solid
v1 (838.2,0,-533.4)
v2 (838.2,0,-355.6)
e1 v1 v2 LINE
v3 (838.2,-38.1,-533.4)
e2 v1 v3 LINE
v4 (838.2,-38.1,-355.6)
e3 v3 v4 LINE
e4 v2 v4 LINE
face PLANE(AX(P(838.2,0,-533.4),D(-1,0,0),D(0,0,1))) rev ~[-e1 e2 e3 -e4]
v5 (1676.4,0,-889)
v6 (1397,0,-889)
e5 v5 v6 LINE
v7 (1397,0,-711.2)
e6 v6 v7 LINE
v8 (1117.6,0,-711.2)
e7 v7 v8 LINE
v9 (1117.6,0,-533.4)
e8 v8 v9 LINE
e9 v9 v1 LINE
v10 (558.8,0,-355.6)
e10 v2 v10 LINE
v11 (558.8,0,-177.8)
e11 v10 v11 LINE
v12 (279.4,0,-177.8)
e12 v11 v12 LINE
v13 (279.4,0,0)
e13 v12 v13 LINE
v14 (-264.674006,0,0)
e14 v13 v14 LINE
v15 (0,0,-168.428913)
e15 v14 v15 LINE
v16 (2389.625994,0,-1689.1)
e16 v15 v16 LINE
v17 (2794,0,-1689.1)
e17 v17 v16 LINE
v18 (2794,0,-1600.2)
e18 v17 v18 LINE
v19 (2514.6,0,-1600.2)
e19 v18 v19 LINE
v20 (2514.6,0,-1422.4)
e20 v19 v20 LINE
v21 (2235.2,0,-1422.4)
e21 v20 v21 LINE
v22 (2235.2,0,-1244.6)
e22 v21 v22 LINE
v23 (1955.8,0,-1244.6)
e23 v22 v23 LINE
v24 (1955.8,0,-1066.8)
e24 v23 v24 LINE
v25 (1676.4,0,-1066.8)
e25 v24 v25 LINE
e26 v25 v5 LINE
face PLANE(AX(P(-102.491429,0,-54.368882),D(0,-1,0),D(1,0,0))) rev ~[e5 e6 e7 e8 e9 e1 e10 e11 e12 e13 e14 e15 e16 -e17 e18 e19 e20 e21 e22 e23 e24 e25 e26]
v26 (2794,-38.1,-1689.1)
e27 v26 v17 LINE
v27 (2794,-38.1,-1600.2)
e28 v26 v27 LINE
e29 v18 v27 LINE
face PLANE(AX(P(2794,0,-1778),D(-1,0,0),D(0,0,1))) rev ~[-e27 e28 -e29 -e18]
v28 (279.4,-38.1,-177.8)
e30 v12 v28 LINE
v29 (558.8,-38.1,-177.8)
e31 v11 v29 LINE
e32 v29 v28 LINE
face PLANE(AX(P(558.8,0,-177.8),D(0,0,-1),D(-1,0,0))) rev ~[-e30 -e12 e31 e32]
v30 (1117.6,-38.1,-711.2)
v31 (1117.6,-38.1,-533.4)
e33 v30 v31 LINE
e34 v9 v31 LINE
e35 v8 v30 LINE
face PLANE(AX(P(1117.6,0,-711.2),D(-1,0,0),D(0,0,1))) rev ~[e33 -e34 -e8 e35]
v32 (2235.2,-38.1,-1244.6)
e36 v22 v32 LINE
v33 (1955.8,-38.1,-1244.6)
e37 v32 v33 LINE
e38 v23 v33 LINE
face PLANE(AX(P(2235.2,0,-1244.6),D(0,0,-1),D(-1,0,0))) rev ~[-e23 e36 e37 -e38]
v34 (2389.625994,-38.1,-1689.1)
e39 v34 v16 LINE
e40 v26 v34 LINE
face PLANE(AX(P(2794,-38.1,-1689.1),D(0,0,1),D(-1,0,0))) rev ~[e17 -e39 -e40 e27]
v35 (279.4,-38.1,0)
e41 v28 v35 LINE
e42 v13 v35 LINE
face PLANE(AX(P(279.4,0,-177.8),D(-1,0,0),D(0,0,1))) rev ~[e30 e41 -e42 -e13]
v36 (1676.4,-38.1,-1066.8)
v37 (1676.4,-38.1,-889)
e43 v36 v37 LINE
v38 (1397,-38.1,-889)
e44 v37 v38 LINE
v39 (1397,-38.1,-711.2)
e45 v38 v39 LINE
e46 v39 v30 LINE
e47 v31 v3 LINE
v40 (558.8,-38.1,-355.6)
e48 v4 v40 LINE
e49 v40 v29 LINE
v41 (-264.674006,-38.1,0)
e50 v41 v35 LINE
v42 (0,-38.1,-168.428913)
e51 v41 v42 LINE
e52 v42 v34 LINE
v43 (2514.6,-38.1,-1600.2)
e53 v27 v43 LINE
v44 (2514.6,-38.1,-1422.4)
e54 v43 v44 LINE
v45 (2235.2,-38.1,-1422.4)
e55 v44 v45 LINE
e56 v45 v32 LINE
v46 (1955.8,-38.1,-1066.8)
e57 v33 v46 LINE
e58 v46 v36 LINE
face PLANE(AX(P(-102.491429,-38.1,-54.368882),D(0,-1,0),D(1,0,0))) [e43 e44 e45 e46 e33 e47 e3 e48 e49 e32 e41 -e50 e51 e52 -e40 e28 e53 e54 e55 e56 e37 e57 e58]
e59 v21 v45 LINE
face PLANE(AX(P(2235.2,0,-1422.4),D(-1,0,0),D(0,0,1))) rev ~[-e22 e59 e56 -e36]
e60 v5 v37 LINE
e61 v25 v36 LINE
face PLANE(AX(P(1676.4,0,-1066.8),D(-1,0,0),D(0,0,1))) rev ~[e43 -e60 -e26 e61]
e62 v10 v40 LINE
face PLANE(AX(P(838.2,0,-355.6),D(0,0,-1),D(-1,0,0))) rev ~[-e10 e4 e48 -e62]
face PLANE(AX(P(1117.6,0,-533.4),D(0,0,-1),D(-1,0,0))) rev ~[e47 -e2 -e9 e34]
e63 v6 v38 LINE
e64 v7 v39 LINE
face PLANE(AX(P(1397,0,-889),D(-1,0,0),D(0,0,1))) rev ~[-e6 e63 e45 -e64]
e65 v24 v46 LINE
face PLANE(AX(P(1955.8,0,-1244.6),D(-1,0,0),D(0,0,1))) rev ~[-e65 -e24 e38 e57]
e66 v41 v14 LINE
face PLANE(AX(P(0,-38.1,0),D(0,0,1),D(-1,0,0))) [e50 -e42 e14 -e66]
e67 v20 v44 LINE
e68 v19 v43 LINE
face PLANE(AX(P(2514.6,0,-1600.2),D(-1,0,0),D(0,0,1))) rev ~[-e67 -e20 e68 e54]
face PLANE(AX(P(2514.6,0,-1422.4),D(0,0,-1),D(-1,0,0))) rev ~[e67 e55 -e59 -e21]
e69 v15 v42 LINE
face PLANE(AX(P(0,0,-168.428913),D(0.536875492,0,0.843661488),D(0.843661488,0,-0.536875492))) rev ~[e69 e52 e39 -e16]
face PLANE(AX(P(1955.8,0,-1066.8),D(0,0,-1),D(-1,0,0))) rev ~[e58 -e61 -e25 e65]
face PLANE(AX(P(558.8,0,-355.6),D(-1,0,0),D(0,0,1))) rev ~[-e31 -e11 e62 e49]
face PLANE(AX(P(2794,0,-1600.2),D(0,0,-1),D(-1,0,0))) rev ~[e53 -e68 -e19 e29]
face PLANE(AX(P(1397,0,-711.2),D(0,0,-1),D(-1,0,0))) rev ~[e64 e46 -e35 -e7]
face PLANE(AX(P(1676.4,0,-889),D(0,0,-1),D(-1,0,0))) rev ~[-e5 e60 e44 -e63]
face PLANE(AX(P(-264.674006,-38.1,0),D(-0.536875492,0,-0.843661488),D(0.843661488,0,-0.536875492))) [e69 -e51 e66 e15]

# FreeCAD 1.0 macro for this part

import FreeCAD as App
import Part
import Sketcher

V = App.Vector
Q = App.Units.Quantity

doc = App.newDocument("Part")
body = doc.addObject("PartDesign::Body", "Body")

# Sketch on XZ plane
sketch1 = body.newObject("Sketcher::SketchObject", "Sketch")
sketch1.AttachmentSupport = (doc.getObject("XZ_Plane"), [""])
sketch1.MapMode = "FlatFace"
sketch1.addGeometry(Part.LineSegment(V(279, 0, 0), V(0, 0, 0)), False)
sketch1.addGeometry(Part.LineSegment(V(0, 0, 0), V(0, -168, 0)), False)
sketch1.addGeometry(Part.LineSegment(V(0, -168, 0), V(2529, -1778, 0)), False)
sketch1.addGeometry(Part.LineSegment(V(2529, -1778, 0), V(2794, -1778, 0)), False)
sketch1.addGeometry(Part.LineSegment(V(2794, -1778, 0), V(2794, -1600, 0)), False)
sketch1.addGeometry(Part.LineSegment(V(2794, -1600, 0), V(2515, -1600, 0)), False)
sketch1.addGeometry(Part.LineSegment(V(2515, -1600, 0), V(2515, -1422, 0)), False)
sketch1.addGeometry(Part.LineSegment(V(2515, -1422, 0), V(2235, -1422, 0)), False)
sketch1.addGeometry(Part.LineSegment(V(2235, -1422, 0), V(2235, -1245, 0)), False)
sketch1.addGeometry(Part.LineSegment(V(2235, -1245, 0), V(1956, -1245, 0)), False)
sketch1.addGeometry(Part.LineSegment(V(1956, -1245, 0), V(1956, -1067, 0)), False)
sketch1.addGeometry(Part.LineSegment(V(1956, -1067, 0), V(1676, -1067, 0)), False)
sketch1.addGeometry(Part.LineSegment(V(1676, -1067, 0), V(1676, -889, 0)), False)
sketch1.addGeometry(Part.LineSegment(V(1676, -889, 0), V(1397, -889, 0)), False)
sketch1.addGeometry(Part.LineSegment(V(1397, -889, 0), V(1397, -711, 0)), False)
sketch1.addGeometry(Part.LineSegment(V(1397, -711, 0), V(1118, -711, 0)), False)
sketch1.addGeometry(Part.LineSegment(V(1118, -711, 0), V(1118, -533, 0)), False)
sketch1.addGeometry(Part.LineSegment(V(1118, -533, 0), V(838, -533, 0)), False)
sketch1.addGeometry(Part.LineSegment(V(838, -533, 0), V(838, -356, 0)), False)
sketch1.addGeometry(Part.LineSegment(V(838, -356, 0), V(559, -356, 0)), False)
sketch1.addGeometry(Part.LineSegment(V(559, -356, 0), V(559, -178, 0)), False)
sketch1.addGeometry(Part.LineSegment(V(559, -178, 0), V(279, -178, 0)), False)
sketch1.addGeometry(Part.LineSegment(V(279, -178, 0), V(279, 0, 0)), False)
sketch1.addConstraint(Sketcher.Constraint("Coincident", 0, 2, 1, 1))
sketch1.addConstraint(Sketcher.Constraint("Coincident", 1, 2, 2, 1))
sketch1.addConstraint(Sketcher.Constraint("Coincident", 2, 2, 3, 1))
sketch1.addConstraint(Sketcher.Constraint("Coincident", 3, 2, 4, 1))
sketch1.addConstraint(Sketcher.Constraint("Coincident", 4, 2, 5, 1))
sketch1.addConstraint(Sketcher.Constraint("Coincident", 5, 2, 6, 1))
sketch1.addConstraint(Sketcher.Constraint("Coincident", 6, 2, 7, 1))
sketch1.addConstraint(Sketcher.Constraint("Coincident", 7, 2, 8, 1))
sketch1.addConstraint(Sketcher.Constraint("Coincident", 8, 2, 9, 1))
sketch1.addConstraint(Sketcher.Constraint("Coincident", 9, 2, 10, 1))
sketch1.addConstraint(Sketcher.Constraint("Coincident", 10, 2, 11, 1))
sketch1.addConstraint(Sketcher.Constraint("Coincident", 11, 2, 12, 1))
sketch1.addConstraint(Sketcher.Constraint("Coincident", 12, 2, 13, 1))
sketch1.addConstraint(Sketcher.Constraint("Coincident", 13, 2, 14, 1))
sketch1.addConstraint(Sketcher.Constraint("Coincident", 14, 2, 15, 1))
sketch1.addConstraint(Sketcher.Constraint("Coincident", 15, 2, 16, 1))
sketch1.addConstraint(Sketcher.Constraint("Coincident", 16, 2, 17, 1))
sketch1.addConstraint(Sketcher.Constraint("Coincident", 17, 2, 18, 1))
sketch1.addConstraint(Sketcher.Constraint("Coincident", 18, 2, 19, 1))
sketch1.addConstraint(Sketcher.Constraint("Coincident", 19, 2, 20, 1))
sketch1.addConstraint(Sketcher.Constraint("Coincident", 20, 2, 21, 1))
sketch1.addConstraint(Sketcher.Constraint("Coincident", 21, 2, 22, 1))
sketch1.addConstraint(Sketcher.Constraint("Coincident", 22, 2, 0, 1))
sketch1.addConstraint(Sketcher.Constraint("Horizontal", 0))
sketch1.addConstraint(Sketcher.Constraint("Vertical", 1))
sketch1.addConstraint(Sketcher.Constraint("Horizontal", 3))
sketch1.addConstraint(Sketcher.Constraint("Vertical", 4))
sketch1.addConstraint(Sketcher.Constraint("Horizontal", 5))
sketch1.addConstraint(Sketcher.Constraint("Vertical", 6))
sketch1.addConstraint(Sketcher.Constraint("Horizontal", 7))
sketch1.addConstraint(Sketcher.Constraint("Vertical", 8))
sketch1.addConstraint(Sketcher.Constraint("Horizontal", 9))
sketch1.addConstraint(Sketcher.Constraint("Vertical", 10))
sketch1.addConstraint(Sketcher.Constraint("Horizontal", 11))
sketch1.addConstraint(Sketcher.Constraint("Vertical", 12))
sketch1.addConstraint(Sketcher.Constraint("Horizontal", 13))
sketch1.addConstraint(Sketcher.Constraint("Vertical", 14))
sketch1.addConstraint(Sketcher.Constraint("Horizontal", 15))
sketch1.addConstraint(Sketcher.Constraint("Vertical", 16))
sketch1.addConstraint(Sketcher.Constraint("Horizontal", 17))
sketch1.addConstraint(Sketcher.Constraint("Vertical", 18))
sketch1.addConstraint(Sketcher.Constraint("Horizontal", 19))
sketch1.addConstraint(Sketcher.Constraint("Vertical", 20))
sketch1.addConstraint(Sketcher.Constraint("Horizontal", 21))
sketch1.addConstraint(Sketcher.Constraint("Vertical", 22))
sketch1.addConstraint(Sketcher.Constraint("Coincident", 0, 2, -1, 1))
sketch1.addConstraint(Sketcher.Constraint("Equal", 0, 5))
sketch1.addConstraint(Sketcher.Constraint("Equal", 5, 7))
sketch1.addConstraint(Sketcher.Constraint("Equal", 7, 9))
sketch1.addConstraint(Sketcher.Constraint("Equal", 9, 11))
sketch1.addConstraint(Sketcher.Constraint("Equal", 11, 13))
sketch1.addConstraint(Sketcher.Constraint("Equal", 13, 15))
sketch1.addConstraint(Sketcher.Constraint("Equal", 15, 17))
sketch1.addConstraint(Sketcher.Constraint("Equal", 17, 19))
sketch1.addConstraint(Sketcher.Constraint("Equal", 19, 21))
sketch1.addConstraint(Sketcher.Constraint("Equal", 4, 6))
sketch1.addConstraint(Sketcher.Constraint("Equal", 6, 8))
sketch1.addConstraint(Sketcher.Constraint("Equal", 8, 10))
sketch1.addConstraint(Sketcher.Constraint("Equal", 10, 12))
sketch1.addConstraint(Sketcher.Constraint("Equal", 12, 14))
sketch1.addConstraint(Sketcher.Constraint("Equal", 14, 16))
sketch1.addConstraint(Sketcher.Constraint("Equal", 16, 18))
sketch1.addConstraint(Sketcher.Constraint("Equal", 18, 20))
sketch1.addConstraint(Sketcher.Constraint("Equal", 20, 22))
sketch1.addConstraint(Sketcher.Constraint("DistanceX", 0, 2, 0, 1, Q("11 in")))
sketch1.addConstraint(Sketcher.Constraint("DistanceY", 4, 1, 4, 2, Q("7 in")))
sketch1.addConstraint(Sketcher.Constraint("Distance", 2, 2998.034201))
sketch1.addConstraint(Sketcher.Constraint("DistanceX", 3, 1, 3, 2, 264.674006))
pad1 = body.newObject("PartDesign::Pad", "Pad")
pad1.Profile = sketch1
pad1.Length = Q("1.5 in")

# Sketch on XZ plane
sketch2 = body.newObject("Sketcher::SketchObject", "Sketch001")
sketch2.AttachmentSupport = (doc.getObject("XZ_Plane"), [""])
sketch2.MapMode = "FlatFace"
sketch2.AttachmentOffset = App.Placement(V(0, 0, 1.5 * 25.4), App.Rotation())
sketch2.addGeometry(Part.LineSegment(V(0, -168, 0), V(0, 0, 0)), False)
sketch2.addGeometry(Part.LineSegment(V(0, 0, 0), V(-265, 0, 0)), False)
sketch2.addGeometry(Part.LineSegment(V(-265, 0, 0), V(0, -168, 0)), False)
sketch2.addConstraint(Sketcher.Constraint("Coincident", 0, 2, 1, 1))
sketch2.addConstraint(Sketcher.Constraint("Coincident", 1, 2, 2, 1))
sketch2.addConstraint(Sketcher.Constraint("Coincident", 2, 2, 0, 1))
sketch2.addConstraint(Sketcher.Constraint("Vertical", 0))
sketch2.addConstraint(Sketcher.Constraint("Horizontal", 1))
sketch2.addConstraint(Sketcher.Constraint("Coincident", 0, 2, -1, 1))
sketch2.addConstraint(Sketcher.Constraint("Distance", 2, 313.720621))
sketch2.addConstraint(Sketcher.Constraint("DistanceX", 1, 2, 1, 1, 264.674006))
pad2 = body.newObject("PartDesign::Pad", "Pad001")
pad2.Profile = sketch2
pad2.Length = Q("1.5 in")
pad2.Reversed = True

# Sketch on XZ plane
sketch3 = body.newObject("Sketcher::SketchObject", "Sketch002")
sketch3.AttachmentSupport = (doc.getObject("XZ_Plane"), [""])
sketch3.MapMode = "FlatFace"
sketch3.AttachmentOffset = App.Placement(V(0, 0, 1.5 * 25.4), App.Rotation())
sketch3.addGeometry(Part.LineSegment(V(2794, -1778, 0), V(2794, -1689, 0)), False)
sketch3.addGeometry(Part.LineSegment(V(2794, -1689, 0), V(2390, -1689, 0)), False)
sketch3.addGeometry(Part.LineSegment(V(2390, -1689, 0), V(2529, -1778, 0)), False)
sketch3.addGeometry(Part.LineSegment(V(2529, -1778, 0), V(2794, -1778, 0)), False)
sketch3.addConstraint(Sketcher.Constraint("Coincident", 0, 2, 1, 1))
sketch3.addConstraint(Sketcher.Constraint("Coincident", 1, 2, 2, 1))
sketch3.addConstraint(Sketcher.Constraint("Coincident", 2, 2, 3, 1))
sketch3.addConstraint(Sketcher.Constraint("Coincident", 3, 2, 0, 1))
sketch3.addConstraint(Sketcher.Constraint("Vertical", 0))
sketch3.addConstraint(Sketcher.Constraint("Horizontal", 1))
sketch3.addConstraint(Sketcher.Constraint("Horizontal", 3))
sketch3.addConstraint(Sketcher.Constraint("DistanceY", 0, 1, 0, 2, Q("3.5 in")))
sketch3.addConstraint(Sketcher.Constraint("DistanceX", -1, 1, 0, 2, Q("110 in")))
sketch3.addConstraint(Sketcher.Constraint("DistanceY", 2, 2, -1, 1, Q("70 in")))
sketch3.addConstraint(Sketcher.Constraint("DistanceX", 1, 2, 2, 2, Q("5.5 in")))
sketch3.addConstraint(Sketcher.Constraint("DistanceX", 1, 2, 1, 1, 404.374006))
pocket1 = body.newObject("PartDesign::Pocket", "Pocket")
pocket1.Profile = sketch3
pocket1.Type = "ThroughAll"

doc.recompute()
